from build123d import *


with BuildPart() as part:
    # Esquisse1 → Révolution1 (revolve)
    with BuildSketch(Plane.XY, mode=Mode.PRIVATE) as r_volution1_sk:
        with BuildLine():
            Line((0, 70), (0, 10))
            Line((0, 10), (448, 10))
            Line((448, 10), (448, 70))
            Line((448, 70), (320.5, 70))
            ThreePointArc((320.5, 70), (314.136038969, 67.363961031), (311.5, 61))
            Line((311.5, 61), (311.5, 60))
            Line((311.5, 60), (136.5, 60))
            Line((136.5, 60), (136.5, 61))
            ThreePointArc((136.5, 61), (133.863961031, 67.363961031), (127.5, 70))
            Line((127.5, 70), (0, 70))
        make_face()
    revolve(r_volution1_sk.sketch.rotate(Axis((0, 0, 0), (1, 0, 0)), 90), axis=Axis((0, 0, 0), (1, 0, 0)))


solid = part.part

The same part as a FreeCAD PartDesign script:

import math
import FreeCAD as App
import Part
import Sketcher

V = App.Vector
Q = App.Units.Quantity

doc = App.newDocument("Part")
body = doc.addObject("PartDesign::Body", "Body")

sketch1 = body.newObject("Sketcher::SketchObject", "Sketch")
sketch1.AttachmentSupport = (doc.getObject("XY_Plane"), [""])
sketch1.MapMode = "FlatFace"
sketch1.addGeometry([
    Part.LineSegment(V(0, 70, 0), V(0, 10, 0)),
    Part.LineSegment(V(0, 10, 0), V(448, 10, 0)),
    Part.LineSegment(V(448, 10, 0), V(448, 70, 0)),
    Part.LineSegment(V(448, 70, 0), V(320.5, 70, 0)),
    Part.ArcOfCircle(Part.Circle(V(320.5, 61, 0), V(0, 0, 1), 9), math.radians(90), math.radians(180)),
    Part.LineSegment(V(311.5, 61, 0), V(311.5, 60, 0)),
    Part.LineSegment(V(311.5, 60, 0), V(136.5, 60, 0)),
    Part.LineSegment(V(136.5, 60, 0), V(136.5, 61, 0)),
    Part.ArcOfCircle(Part.Circle(V(127.5, 61, 0), V(0, 0, 1), 9), math.radians(0), math.radians(90)),
    Part.LineSegment(V(127.5, 70, 0), V(0, 70, 0)),
], False)
sketch1.addConstraint([
    Sketcher.Constraint("Coincident", 0, 2, 1, 1),
    Sketcher.Constraint("Coincident", 1, 2, 2, 1),
    Sketcher.Constraint("Coincident", 2, 2, 3, 1),
    Sketcher.Constraint("Tangent", 3, 2, 4, 1),
    Sketcher.Constraint("Tangent", 4, 2, 5, 1),
    Sketcher.Constraint("Coincident", 5, 2, 6, 1),
    Sketcher.Constraint("Coincident", 6, 2, 7, 1),
    Sketcher.Constraint("Tangent", 7, 2, 8, 1),
    Sketcher.Constraint("Tangent", 8, 2, 9, 1),
    Sketcher.Constraint("Coincident", 9, 2, 0, 1),
    Sketcher.Constraint("Vertical", 0),
    Sketcher.Constraint("Horizontal", 1),
    Sketcher.Constraint("Vertical", 2),
    Sketcher.Constraint("Horizontal", 3),
    Sketcher.Constraint("Vertical", 5),
    Sketcher.Constraint("Horizontal", 6),
    Sketcher.Constraint("Vertical", 7),
    Sketcher.Constraint("Horizontal", 9),
    Sketcher.Constraint("Equal", 4, 8),
    Sketcher.Constraint("PointOnObject", 0, 2, -2),
    Sketcher.Constraint("Horizontal", 4, 3, 8, 3),
    Sketcher.Constraint("Equal", 3, 9),
    Sketcher.Constraint("Radius", 4, Q("9 mm")),
    Sketcher.Constraint("DistanceX", 1, 1, 1, 2, Q("448 mm")),
    Sketcher.Constraint("DistanceX", 6, 2, 6, 1, Q("175 mm")),
    Sketcher.Constraint("DistanceY", 0, 2, 0, 1, Q("60 mm")),
    Sketcher.Constraint("DistanceY", 5, 2, 5, 1, Q("1 mm")),
    Sketcher.Constraint("DistanceY", -1, 1, 4, 3, Q("61 mm")),
])
revolution = body.newObject("PartDesign::Revolution", "Revolution")
revolution.Profile = sketch1
revolution.ReferenceAxis = (sketch1, ["H_Axis"])
revolution.Angle = 360

doc.recompute()
